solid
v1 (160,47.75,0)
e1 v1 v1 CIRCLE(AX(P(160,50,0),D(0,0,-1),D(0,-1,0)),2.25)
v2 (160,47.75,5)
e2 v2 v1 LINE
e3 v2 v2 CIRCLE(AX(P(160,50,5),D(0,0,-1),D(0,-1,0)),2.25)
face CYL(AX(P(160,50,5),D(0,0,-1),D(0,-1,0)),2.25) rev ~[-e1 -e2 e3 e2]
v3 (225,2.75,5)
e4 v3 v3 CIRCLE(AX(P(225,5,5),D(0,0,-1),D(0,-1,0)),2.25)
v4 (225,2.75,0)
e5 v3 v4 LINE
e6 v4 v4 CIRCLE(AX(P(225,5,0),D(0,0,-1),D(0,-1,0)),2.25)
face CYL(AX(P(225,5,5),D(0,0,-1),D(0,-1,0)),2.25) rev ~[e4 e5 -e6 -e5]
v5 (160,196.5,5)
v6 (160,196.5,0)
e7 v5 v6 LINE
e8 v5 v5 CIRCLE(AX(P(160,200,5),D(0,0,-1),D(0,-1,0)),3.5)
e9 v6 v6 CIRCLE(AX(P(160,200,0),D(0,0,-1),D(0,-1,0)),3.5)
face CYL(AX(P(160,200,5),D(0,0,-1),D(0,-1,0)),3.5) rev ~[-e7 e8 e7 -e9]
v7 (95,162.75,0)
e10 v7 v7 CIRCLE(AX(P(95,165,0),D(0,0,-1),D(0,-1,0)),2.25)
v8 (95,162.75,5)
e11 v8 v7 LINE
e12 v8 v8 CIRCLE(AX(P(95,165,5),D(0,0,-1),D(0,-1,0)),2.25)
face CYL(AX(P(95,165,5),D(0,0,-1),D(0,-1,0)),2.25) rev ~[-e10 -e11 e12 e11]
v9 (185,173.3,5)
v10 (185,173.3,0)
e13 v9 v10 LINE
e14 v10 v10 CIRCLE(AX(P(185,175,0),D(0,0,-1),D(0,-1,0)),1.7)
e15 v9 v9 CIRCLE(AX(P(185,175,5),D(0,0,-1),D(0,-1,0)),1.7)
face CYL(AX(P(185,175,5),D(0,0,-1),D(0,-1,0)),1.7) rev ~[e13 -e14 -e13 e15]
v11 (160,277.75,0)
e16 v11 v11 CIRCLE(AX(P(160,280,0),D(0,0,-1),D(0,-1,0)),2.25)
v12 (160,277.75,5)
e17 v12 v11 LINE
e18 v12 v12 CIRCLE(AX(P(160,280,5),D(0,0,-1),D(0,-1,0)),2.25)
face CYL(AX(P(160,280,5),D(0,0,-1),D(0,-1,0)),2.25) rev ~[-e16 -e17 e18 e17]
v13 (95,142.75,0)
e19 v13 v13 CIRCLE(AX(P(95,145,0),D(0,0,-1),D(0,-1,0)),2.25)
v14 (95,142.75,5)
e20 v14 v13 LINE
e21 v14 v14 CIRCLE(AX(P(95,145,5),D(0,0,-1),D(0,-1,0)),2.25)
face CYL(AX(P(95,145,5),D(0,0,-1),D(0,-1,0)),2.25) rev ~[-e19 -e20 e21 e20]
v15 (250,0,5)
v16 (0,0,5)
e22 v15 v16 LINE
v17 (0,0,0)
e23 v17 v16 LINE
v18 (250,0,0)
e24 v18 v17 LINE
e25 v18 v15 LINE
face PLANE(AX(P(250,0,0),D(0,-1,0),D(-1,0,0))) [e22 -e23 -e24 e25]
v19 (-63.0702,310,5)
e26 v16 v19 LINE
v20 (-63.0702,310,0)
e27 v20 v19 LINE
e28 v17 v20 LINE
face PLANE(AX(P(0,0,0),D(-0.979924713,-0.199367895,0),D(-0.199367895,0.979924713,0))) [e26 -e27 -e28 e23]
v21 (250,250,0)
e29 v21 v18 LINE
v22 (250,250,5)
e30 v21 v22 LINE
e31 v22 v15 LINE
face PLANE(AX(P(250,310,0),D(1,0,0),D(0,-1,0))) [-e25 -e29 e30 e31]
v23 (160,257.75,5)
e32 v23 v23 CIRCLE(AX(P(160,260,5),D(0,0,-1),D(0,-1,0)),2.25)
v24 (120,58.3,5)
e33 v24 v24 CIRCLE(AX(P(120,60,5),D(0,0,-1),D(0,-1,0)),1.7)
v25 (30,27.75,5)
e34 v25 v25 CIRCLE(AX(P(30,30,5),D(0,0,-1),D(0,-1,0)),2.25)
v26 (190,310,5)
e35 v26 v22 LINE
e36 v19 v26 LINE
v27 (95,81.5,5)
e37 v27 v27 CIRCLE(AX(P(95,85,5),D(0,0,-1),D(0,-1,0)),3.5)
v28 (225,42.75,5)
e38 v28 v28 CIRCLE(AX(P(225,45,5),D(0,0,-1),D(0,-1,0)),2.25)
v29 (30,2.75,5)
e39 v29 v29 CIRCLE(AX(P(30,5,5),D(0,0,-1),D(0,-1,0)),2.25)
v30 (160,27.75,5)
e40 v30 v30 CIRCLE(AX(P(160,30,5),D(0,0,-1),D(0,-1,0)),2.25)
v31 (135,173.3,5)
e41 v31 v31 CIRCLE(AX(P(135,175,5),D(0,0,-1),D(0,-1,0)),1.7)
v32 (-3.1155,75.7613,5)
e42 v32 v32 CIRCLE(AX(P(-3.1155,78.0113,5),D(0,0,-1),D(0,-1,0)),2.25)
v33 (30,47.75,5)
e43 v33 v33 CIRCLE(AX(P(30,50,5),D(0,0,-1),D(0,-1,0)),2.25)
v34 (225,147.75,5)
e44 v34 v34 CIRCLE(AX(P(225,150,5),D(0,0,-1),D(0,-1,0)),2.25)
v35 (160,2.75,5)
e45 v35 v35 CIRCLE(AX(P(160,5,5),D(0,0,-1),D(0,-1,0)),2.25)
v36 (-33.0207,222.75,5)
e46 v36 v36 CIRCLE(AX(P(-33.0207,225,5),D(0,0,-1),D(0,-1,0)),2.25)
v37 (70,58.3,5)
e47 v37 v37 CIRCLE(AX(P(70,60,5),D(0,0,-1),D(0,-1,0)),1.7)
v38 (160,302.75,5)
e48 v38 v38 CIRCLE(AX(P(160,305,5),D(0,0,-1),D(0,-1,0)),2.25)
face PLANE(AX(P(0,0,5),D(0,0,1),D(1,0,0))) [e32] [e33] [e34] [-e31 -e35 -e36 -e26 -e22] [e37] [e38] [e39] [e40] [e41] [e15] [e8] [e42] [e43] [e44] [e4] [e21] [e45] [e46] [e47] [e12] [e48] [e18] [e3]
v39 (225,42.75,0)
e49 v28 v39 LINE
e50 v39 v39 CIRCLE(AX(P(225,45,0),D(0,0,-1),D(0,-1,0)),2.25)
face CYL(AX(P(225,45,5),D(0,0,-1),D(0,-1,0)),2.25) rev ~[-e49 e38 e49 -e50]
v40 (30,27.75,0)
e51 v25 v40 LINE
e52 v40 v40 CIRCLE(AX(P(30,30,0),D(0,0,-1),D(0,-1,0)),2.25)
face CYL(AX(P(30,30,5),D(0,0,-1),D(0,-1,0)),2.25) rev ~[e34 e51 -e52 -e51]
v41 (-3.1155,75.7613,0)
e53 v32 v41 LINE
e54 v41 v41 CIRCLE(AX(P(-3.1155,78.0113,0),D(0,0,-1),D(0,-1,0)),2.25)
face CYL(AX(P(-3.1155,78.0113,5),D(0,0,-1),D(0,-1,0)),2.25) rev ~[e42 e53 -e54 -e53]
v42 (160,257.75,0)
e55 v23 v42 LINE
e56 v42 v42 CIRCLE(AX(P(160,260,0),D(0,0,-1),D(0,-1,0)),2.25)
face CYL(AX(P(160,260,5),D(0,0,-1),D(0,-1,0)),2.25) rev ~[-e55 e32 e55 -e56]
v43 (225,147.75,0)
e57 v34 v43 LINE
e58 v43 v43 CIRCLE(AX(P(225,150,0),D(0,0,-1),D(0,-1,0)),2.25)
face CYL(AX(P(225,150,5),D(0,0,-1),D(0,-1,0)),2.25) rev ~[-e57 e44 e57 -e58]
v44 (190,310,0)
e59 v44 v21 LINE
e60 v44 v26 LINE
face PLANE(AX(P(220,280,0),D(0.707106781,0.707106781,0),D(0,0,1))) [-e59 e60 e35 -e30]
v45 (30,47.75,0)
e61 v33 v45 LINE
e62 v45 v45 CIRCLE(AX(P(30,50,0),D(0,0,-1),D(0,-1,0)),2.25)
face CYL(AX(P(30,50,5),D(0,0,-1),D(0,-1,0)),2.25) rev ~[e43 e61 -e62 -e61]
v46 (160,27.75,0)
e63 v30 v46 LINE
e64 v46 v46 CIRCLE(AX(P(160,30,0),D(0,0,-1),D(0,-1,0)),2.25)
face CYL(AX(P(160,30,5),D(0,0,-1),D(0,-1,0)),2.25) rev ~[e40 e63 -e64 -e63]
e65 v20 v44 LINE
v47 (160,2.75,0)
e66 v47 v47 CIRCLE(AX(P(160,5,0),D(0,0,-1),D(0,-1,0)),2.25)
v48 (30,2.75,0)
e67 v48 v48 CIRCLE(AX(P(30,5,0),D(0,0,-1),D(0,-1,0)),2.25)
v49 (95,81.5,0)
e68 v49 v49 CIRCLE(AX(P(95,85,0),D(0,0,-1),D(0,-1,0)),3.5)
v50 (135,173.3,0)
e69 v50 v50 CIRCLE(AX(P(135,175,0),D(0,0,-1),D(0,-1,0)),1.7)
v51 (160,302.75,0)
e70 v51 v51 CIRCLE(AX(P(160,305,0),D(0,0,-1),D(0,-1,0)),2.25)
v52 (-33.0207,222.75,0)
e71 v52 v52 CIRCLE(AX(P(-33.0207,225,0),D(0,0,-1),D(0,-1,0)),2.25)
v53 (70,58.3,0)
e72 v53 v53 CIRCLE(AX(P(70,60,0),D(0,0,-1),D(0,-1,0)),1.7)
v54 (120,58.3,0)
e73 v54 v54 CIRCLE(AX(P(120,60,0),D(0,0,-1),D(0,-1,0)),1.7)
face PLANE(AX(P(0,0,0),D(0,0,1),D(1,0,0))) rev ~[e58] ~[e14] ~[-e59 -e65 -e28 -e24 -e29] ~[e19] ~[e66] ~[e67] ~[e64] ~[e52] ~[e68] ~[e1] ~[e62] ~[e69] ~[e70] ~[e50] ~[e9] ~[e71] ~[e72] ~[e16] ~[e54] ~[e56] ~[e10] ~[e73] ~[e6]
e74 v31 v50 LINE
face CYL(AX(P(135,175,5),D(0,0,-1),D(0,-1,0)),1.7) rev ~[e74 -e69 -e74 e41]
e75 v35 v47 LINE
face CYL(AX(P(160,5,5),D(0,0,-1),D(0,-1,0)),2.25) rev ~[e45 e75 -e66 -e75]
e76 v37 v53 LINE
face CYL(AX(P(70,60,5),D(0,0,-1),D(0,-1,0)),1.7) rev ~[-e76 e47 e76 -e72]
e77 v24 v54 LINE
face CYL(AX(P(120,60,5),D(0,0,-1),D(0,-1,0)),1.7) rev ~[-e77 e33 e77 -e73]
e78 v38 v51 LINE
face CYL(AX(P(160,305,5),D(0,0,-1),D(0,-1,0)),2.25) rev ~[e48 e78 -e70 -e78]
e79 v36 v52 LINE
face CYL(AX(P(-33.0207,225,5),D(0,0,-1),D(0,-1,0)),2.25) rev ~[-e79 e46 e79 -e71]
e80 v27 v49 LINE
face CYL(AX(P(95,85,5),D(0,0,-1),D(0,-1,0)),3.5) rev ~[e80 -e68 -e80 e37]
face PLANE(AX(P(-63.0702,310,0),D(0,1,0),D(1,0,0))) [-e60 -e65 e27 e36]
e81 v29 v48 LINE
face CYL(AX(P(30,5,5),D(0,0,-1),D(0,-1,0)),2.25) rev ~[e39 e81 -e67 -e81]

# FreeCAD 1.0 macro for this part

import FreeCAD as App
import Part
import Sketcher
from FreeCAD import Vector
Q = App.Units.Quantity


def edges_at(feature, points):
    """Names of the edges that pass closest to the given points."""
    edges = feature.Shape.Edges
    near = lambda p: min(range(len(edges)), key=lambda i: edges[i].distToShape(Part.Vertex(*p))[0])
    return sorted({f"Edge{near(p) + 1}" for p in points})


def add_polygon(sketch, points):
    """Adds a closed chain of lines whose ends are joined by coincident constraints."""
    first, n = sketch.GeometryCount, len(points)
    for a, b in zip(points, points[1:] + points[:1]):
        sketch.addGeometry(Part.LineSegment(App.Vector(*a, 0), App.Vector(*b, 0)), False)
    for i in range(n):
        sketch.addConstraint(Sketcher.Constraint("Coincident", first + i, 2, first + (i + 1) % n, 1))

doc = App.newDocument("Part")
body = doc.addObject("PartDesign::Body", "Body")

# Sketch on XY plane
sketch1 = doc.addObject("Sketcher::SketchObject", "Sketch")
body.addObject(sketch1)
sketch1.AttachmentSupport = (doc.XY_Plane, [""])
sketch1.MapMode = "FlatFace"
add_polygon(sketch1, [(-63, 310), (0, 0), (250, 0), (250, 310)])  # lines 0-3
sketch1.addConstraint(Sketcher.Constraint("Horizontal", 1))
sketch1.addConstraint(Sketcher.Constraint("Vertical", 2))
sketch1.addConstraint(Sketcher.Constraint("Horizontal", 3))
sketch1.addConstraint(Sketcher.Constraint("Coincident", 0, 2, -1, 1))
sketch1.addConstraint(Sketcher.Constraint("DistanceX", 1, 1, 1, 2, 250.0))
sketch1.addConstraint(Sketcher.Constraint("DistanceY", 2, 1, 2, 2, 310.0))
sketch1.addConstraint(Sketcher.Constraint("Angle", 0, Q("-78.5 deg")))
pad1 = doc.addObject("PartDesign::Pad", "Pad")
body.addObject(pad1)
pad1.Profile = sketch1
pad1.Length = 5

# Sketch on XY plane
sketch2 = doc.addObject("Sketcher::SketchObject", "Sketch001")
body.addObject(sketch2)
sketch2.AttachmentSupport = (doc.XY_Plane, [""])
sketch2.MapMode = "FlatFace"
sketch2.AttachmentOffset = App.Placement(Vector(0, 0, 5), App.Rotation())
sketch2.addGeometry(Part.Circle(Vector(160, 280, 0), Vector(0, 0, 1), 2.2), False)
sketch2.addGeometry(Part.Circle(Vector(160, 260, 0), Vector(0, 0, 1), 2.2), False)
sketch2.addGeometry(Part.Circle(Vector(95, 165, 0), Vector(0, 0, 1), 2.2), False)
sketch2.addGeometry(Part.Circle(Vector(95, 145, 0), Vector(0, 0, 1), 2.2), False)
sketch2.addGeometry(Part.Circle(Vector(225, 150, 0), Vector(0, 0, 1), 2.2), False)
sketch2.addGeometry(Part.Circle(Vector(225, 45, 0), Vector(0, 0, 1), 2.2), False)
sketch2.addGeometry(Part.Circle(Vector(30, 50, 0), Vector(0, 0, 1), 2.2), False)
sketch2.addGeometry(Part.Circle(Vector(30, 30, 0), Vector(0, 0, 1), 2.2), False)
sketch2.addGeometry(Part.Circle(Vector(160, 50, 0), Vector(0, 0, 1), 2.2), False)
sketch2.addGeometry(Part.Circle(Vector(160, 30, 0), Vector(0, 0, 1), 2.2), False)
sketch2.addGeometry(Part.Circle(Vector(160, 305, 0), Vector(0, 0, 1), 2.2), False)
sketch2.addGeometry(Part.Circle(Vector(30, 5, 0), Vector(0, 0, 1), 2.2), False)
sketch2.addGeometry(Part.Circle(Vector(160, 5, 0), Vector(0, 0, 1), 2.2), False)
sketch2.addGeometry(Part.Circle(Vector(225, 5, 0), Vector(0, 0, 1), 2.2), False)
sketch2.addConstraint(Sketcher.Constraint("Equal", 0, 1))
sketch2.addConstraint(Sketcher.Constraint("Equal", 1, 2))
sketch2.addConstraint(Sketcher.Constraint("Equal", 2, 3))
sketch2.addConstraint(Sketcher.Constraint("Equal", 3, 4))
sketch2.addConstraint(Sketcher.Constraint("Equal", 4, 5))
sketch2.addConstraint(Sketcher.Constraint("Equal", 5, 6))
sketch2.addConstraint(Sketcher.Constraint("Equal", 6, 7))
sketch2.addConstraint(Sketcher.Constraint("Equal", 7, 8))
sketch2.addConstraint(Sketcher.Constraint("Equal", 8, 9))
sketch2.addConstraint(Sketcher.Constraint("Equal", 9, 10))
sketch2.addConstraint(Sketcher.Constraint("Equal", 10, 11))
sketch2.addConstraint(Sketcher.Constraint("Equal", 11, 12))
sketch2.addConstraint(Sketcher.Constraint("Equal", 12, 13))
sketch2.addConstraint(Sketcher.Constraint("Horizontal", 6, 3, 8, 3))
sketch2.addConstraint(Sketcher.Constraint("Horizontal", 7, 3, 9, 3))
sketch2.addConstraint(Sketcher.Constraint("Horizontal", 11, 3, 12, 3))
sketch2.addConstraint(Sketcher.Constraint("Horizontal", 12, 3, 13, 3))
sketch2.addConstraint(Sketcher.Constraint("Vertical", 0, 3, 1, 3))
sketch2.addConstraint(Sketcher.Constraint("Vertical", 2, 3, 3, 3))
sketch2.addConstraint(Sketcher.Constraint("Vertical", 4, 3, 5, 3))
sketch2.addConstraint(Sketcher.Constraint("Vertical", 6, 3, 7, 3))
sketch2.addConstraint(Sketcher.Constraint("Vertical", 1, 3, 8, 3))
sketch2.addConstraint(Sketcher.Constraint("Vertical", 8, 3, 9, 3))
sketch2.addConstraint(Sketcher.Constraint("Vertical", 9, 3, 10, 3))
sketch2.addConstraint(Sketcher.Constraint("Vertical", 7, 3, 11, 3))
sketch2.addConstraint(Sketcher.Constraint("Vertical", 10, 3, 12, 3))
sketch2.addConstraint(Sketcher.Constraint("Vertical", 5, 3, 13, 3))
sketch2.addConstraint(Sketcher.Constraint("Diameter", 0, 4.5))
sketch2.addConstraint(Sketcher.Constraint("DistanceX", -1, 1, 0, 3, 160.0))
sketch2.addConstraint(Sketcher.Constraint("DistanceY", -1, 1, 0, 3, 280.0))
sketch2.addConstraint(Sketcher.Constraint("DistanceY", -1, 1, 1, 3, 260.0))
sketch2.addConstraint(Sketcher.Constraint("DistanceX", -1, 1, 2, 3, 95.0))
sketch2.addConstraint(Sketcher.Constraint("DistanceY", -1, 1, 2, 3, 165.0))
sketch2.addConstraint(Sketcher.Constraint("DistanceY", -1, 1, 3, 3, 145.0))
sketch2.addConstraint(Sketcher.Constraint("DistanceX", -1, 1, 4, 3, 225.0))
sketch2.addConstraint(Sketcher.Constraint("DistanceY", -1, 1, 4, 3, 150.0))
sketch2.addConstraint(Sketcher.Constraint("DistanceY", -1, 1, 5, 3, 45.0))
sketch2.addConstraint(Sketcher.Constraint("DistanceX", -1, 1, 6, 3, 30.0))
sketch2.addConstraint(Sketcher.Constraint("DistanceY", -1, 1, 6, 3, 50.0))
sketch2.addConstraint(Sketcher.Constraint("DistanceY", -1, 1, 7, 3, 30.0))
sketch2.addConstraint(Sketcher.Constraint("DistanceY", -1, 1, 10, 3, 305.0))
sketch2.addConstraint(Sketcher.Constraint("DistanceY", -1, 1, 11, 3, 5.0))
doc.recompute()
hole = doc.addObject("PartDesign::Hole", "Hole")
body.addObject(hole)
hole.Profile = sketch2
hole.ThreadType = "None"
hole.Diameter = 4.5
hole.DepthType = "ThroughAll"

# Sketch on XY plane
sketch3 = doc.addObject("Sketcher::SketchObject", "Sketch002")
body.addObject(sketch3)
sketch3.AttachmentSupport = (doc.XY_Plane, [""])
sketch3.MapMode = "FlatFace"
sketch3.AttachmentOffset = App.Placement(Vector(0, 0, 5), App.Rotation())
sketch3.addGeometry(Part.Circle(Vector(160, 200, 0), Vector(0, 0, 1), 3.5), False)
sketch3.addGeometry(Part.Circle(Vector(95, 85, 0), Vector(0, 0, 1), 3.5), False)
sketch3.addConstraint(Sketcher.Constraint("Equal", 0, 1))
sketch3.addConstraint(Sketcher.Constraint("Diameter", 0, 7.0))
sketch3.addConstraint(Sketcher.Constraint("DistanceX", -1, 1, 0, 3, 160.0))
sketch3.addConstraint(Sketcher.Constraint("DistanceY", -1, 1, 0, 3, 200.0))
sketch3.addConstraint(Sketcher.Constraint("DistanceX", -1, 1, 1, 3, 95.0))
sketch3.addConstraint(Sketcher.Constraint("DistanceY", -1, 1, 1, 3, 85.0))
doc.recompute()
hole2 = doc.addObject("PartDesign::Hole", "Hole001")
body.addObject(hole2)
hole2.Profile = sketch3
hole2.ThreadType = "None"
hole2.Diameter = 7
hole2.DepthType = "ThroughAll"

# Sketch on XY plane
sketch4 = doc.addObject("Sketcher::SketchObject", "Sketch003")
body.addObject(sketch4)
sketch4.AttachmentSupport = (doc.XY_Plane, [""])
sketch4.MapMode = "FlatFace"
sketch4.AttachmentOffset = App.Placement(Vector(0, 0, 5), App.Rotation())
sketch4.addGeometry(Part.Circle(Vector(185, 175, 0), Vector(0, 0, 1), 1.7), False)
sketch4.addGeometry(Part.Circle(Vector(135, 175, 0), Vector(0, 0, 1), 1.7), False)
sketch4.addGeometry(Part.Circle(Vector(70, 60, 0), Vector(0, 0, 1), 1.7), False)
sketch4.addGeometry(Part.Circle(Vector(120, 60, 0), Vector(0, 0, 1), 1.7), False)
sketch4.addConstraint(Sketcher.Constraint("Equal", 0, 1))
sketch4.addConstraint(Sketcher.Constraint("Equal", 1, 2))
sketch4.addConstraint(Sketcher.Constraint("Equal", 2, 3))
sketch4.addConstraint(Sketcher.Constraint("Horizontal", 0, 3, 1, 3))
sketch4.addConstraint(Sketcher.Constraint("Horizontal", 2, 3, 3, 3))
sketch4.addConstraint(Sketcher.Constraint("Diameter", 0, 3.4))
sketch4.addConstraint(Sketcher.Constraint("DistanceX", -1, 1, 0, 3, 185.0))
sketch4.addConstraint(Sketcher.Constraint("DistanceY", -1, 1, 0, 3, 175.0))
sketch4.addConstraint(Sketcher.Constraint("DistanceX", -1, 1, 1, 3, 135.0))
sketch4.addConstraint(Sketcher.Constraint("DistanceX", -1, 1, 2, 3, 70.0))
sketch4.addConstraint(Sketcher.Constraint("DistanceY", -1, 1, 2, 3, 60.0))
sketch4.addConstraint(Sketcher.Constraint("DistanceX", -1, 1, 3, 3, 120.0))
doc.recompute()
hole3 = doc.addObject("PartDesign::Hole", "Hole002")
body.addObject(hole3)
hole3.Profile = sketch4
hole3.ThreadType = "None"
hole3.Diameter = 3.4
hole3.DepthType = "ThroughAll"
doc.recompute()

chamfer = doc.addObject("PartDesign::Chamfer", "Chamfer")
body.addObject(chamfer)
chamfer.Base = (hole3, edges_at(hole3, [(250, 310, 2.5)]))
chamfer.Size = 60

# Sketch on XY plane
sketch5 = doc.addObject("Sketcher::SketchObject", "Sketch004")
body.addObject(sketch5)
sketch5.AttachmentSupport = (doc.XY_Plane, [""])
sketch5.MapMode = "FlatFace"
sketch5.AttachmentOffset = App.Placement(Vector(0, 0, 5), App.Rotation())
sketch5.addGeometry(Part.Circle(Vector(-33, 225, 0), Vector(0, 0, 1), 2.2), False)
sketch5.addGeometry(Part.Circle(Vector(-3.1, 78, 0), Vector(0, 0, 1), 2.2), False)
sketch5.addConstraint(Sketcher.Constraint("Equal", 0, 1))
sketch5.addConstraint(Sketcher.Constraint("Diameter", 0, 4.5))
sketch5.addConstraint(Sketcher.Constraint("DistanceY", -1, 1, 0, 3, 225.0))
sketch5.addConstraint(Sketcher.Constraint("DistanceX", 0, 3, -1, 1, 33.0207))
sketch5.addConstraint(Sketcher.Constraint("DistanceX", 1, 3, -1, 1, 3.1155))
sketch5.addConstraint(Sketcher.Constraint("DistanceY", -1, 1, 1, 3, 78.0113))
doc.recompute()
hole4 = doc.addObject("PartDesign::Hole", "Hole003")
body.addObject(hole4)
hole4.Profile = sketch5
hole4.ThreadType = "None"
hole4.Diameter = 4.5
hole4.DepthType = "ThroughAll"

doc.recompute()
